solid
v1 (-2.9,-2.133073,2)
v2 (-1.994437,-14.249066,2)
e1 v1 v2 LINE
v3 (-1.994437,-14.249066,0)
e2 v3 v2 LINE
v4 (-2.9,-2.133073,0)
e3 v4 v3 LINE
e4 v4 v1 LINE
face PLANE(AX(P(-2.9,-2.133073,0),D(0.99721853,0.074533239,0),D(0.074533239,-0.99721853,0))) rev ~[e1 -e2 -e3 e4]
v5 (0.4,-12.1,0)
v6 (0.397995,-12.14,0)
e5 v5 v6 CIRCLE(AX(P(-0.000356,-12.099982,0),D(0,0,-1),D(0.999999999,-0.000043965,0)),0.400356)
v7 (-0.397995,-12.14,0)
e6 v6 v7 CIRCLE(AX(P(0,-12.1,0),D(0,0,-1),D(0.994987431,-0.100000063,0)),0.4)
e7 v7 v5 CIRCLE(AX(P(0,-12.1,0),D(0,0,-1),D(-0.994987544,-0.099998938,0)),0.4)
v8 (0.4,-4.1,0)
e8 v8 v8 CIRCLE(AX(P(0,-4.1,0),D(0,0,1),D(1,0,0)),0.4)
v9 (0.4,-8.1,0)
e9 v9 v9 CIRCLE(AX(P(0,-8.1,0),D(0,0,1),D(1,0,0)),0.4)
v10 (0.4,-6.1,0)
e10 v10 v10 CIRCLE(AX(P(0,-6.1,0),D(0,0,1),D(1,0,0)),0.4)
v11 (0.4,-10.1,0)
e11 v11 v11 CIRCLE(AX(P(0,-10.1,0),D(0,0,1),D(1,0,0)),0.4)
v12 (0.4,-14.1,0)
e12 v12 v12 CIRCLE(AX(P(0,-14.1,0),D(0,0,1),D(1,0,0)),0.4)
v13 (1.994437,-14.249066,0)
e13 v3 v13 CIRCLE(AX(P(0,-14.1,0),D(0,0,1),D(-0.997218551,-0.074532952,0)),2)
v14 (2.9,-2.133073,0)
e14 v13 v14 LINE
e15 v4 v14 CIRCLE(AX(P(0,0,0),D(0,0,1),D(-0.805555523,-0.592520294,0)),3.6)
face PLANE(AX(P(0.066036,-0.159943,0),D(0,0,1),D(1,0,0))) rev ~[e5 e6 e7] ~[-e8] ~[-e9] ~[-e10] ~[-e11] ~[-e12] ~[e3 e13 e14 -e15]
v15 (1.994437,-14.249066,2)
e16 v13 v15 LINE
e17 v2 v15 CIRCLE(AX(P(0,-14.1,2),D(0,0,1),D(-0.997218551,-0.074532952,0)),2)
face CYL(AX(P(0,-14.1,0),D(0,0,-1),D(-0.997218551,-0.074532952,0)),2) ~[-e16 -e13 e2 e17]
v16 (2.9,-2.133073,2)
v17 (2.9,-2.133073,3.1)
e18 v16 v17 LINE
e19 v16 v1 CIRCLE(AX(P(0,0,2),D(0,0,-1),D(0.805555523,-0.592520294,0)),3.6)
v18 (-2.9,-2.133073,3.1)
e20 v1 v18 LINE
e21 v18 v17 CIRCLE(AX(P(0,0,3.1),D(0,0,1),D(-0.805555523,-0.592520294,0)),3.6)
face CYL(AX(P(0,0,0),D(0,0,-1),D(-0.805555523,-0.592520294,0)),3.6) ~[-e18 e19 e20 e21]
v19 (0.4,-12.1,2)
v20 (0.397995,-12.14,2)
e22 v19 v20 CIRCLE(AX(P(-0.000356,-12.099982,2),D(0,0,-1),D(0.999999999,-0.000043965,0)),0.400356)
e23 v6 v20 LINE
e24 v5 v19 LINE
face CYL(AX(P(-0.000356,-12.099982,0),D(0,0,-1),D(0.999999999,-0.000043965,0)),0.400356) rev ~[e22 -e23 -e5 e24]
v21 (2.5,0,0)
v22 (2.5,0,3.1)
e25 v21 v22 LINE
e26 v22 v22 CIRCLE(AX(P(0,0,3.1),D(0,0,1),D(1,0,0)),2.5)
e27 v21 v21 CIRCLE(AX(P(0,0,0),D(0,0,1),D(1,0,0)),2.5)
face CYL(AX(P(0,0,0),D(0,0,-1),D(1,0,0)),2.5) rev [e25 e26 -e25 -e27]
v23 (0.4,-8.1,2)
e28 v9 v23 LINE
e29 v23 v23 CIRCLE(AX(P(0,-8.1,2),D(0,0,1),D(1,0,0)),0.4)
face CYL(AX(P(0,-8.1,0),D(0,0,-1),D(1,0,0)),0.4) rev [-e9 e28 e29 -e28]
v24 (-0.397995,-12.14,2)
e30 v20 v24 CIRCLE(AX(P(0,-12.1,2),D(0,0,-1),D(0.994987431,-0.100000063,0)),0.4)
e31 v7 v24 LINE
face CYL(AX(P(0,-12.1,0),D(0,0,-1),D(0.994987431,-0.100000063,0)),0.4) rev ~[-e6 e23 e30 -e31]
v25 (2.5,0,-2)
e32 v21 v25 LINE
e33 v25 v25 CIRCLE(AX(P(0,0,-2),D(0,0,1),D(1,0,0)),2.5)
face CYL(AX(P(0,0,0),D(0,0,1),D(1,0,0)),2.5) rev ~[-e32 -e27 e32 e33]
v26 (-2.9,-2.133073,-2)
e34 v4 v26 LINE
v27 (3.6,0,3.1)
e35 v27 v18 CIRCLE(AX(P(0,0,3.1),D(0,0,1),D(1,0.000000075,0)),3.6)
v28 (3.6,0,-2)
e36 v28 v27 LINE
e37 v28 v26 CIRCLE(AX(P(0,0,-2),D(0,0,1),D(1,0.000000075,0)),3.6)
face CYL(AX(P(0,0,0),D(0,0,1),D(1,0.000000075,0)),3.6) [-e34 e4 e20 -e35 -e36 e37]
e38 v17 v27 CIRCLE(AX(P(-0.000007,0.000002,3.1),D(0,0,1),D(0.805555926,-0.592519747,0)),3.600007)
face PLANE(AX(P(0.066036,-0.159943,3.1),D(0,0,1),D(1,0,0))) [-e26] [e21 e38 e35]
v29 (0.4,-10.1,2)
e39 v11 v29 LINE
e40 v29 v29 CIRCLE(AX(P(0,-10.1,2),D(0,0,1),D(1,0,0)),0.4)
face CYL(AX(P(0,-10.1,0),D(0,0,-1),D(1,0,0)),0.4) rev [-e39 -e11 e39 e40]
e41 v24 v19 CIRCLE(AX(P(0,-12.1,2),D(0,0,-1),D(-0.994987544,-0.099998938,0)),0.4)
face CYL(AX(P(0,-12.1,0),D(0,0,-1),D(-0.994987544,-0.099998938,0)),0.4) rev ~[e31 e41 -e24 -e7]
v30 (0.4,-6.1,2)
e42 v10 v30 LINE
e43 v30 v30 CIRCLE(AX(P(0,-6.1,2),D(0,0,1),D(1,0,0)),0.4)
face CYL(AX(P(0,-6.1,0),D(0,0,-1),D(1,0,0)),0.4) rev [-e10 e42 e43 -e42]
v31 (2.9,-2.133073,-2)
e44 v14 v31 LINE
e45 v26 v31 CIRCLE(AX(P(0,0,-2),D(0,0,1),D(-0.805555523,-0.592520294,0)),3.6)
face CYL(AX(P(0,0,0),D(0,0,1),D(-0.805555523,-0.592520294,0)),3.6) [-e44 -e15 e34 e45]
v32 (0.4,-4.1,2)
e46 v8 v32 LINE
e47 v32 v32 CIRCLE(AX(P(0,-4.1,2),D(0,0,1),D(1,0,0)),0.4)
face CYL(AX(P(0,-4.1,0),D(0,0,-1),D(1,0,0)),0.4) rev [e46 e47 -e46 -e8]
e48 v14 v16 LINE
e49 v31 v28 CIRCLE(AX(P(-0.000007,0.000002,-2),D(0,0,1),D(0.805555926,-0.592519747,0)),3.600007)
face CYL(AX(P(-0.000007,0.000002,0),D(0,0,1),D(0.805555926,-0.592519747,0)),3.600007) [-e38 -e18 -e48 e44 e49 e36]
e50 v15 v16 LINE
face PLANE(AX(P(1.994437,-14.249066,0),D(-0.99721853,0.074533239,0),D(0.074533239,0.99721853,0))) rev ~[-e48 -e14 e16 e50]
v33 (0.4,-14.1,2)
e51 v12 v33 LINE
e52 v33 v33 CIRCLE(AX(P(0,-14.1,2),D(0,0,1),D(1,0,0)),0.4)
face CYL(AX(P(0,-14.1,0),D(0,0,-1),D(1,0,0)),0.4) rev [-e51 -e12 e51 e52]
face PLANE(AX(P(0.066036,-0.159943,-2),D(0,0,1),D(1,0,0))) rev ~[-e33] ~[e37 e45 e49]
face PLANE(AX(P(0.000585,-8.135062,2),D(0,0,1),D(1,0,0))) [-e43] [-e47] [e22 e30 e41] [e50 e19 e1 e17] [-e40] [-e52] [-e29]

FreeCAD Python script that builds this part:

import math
import FreeCAD as App
import Part
import Sketcher

doc = App.newDocument("Part")
params = doc.addObject("Spreadsheet::Sheet", "Params")
for row, (alias, value) in enumerate([
    ("sketch1_radius", "2 mm"),
    ("sketch1_diameter", "0.8 mm"),
    ("sketch1_radius2", "3.6 mm"),
    ("pad1_length", "2 mm"),
    ("sketch2_diameter", "5 mm"),
    ("sketch2_radius", "3.6 mm"),
    ("pad2_length", "3.1 mm"),
    ("pad2_length2", "2 mm"),
], start=1):
    params.set(f"A{row}", alias)
    params.set(f"B{row}", "=" + value)
    params.setAlias(f"B{row}", alias)

body = doc.addObject("PartDesign::Body", "Body")

# Sketch on XY plane
sketch1 = body.newObject("Sketcher::SketchObject", "Sketch")
sketch1.AttachmentSupport = (doc.getObject("XY_Plane"), [""])
sketch1.MapMode = "FlatFace"
sketch1.addGeometry(Part.ArcOfCircle(Part.Circle(App.Vector(0, 0, 0), App.Vector(0, 0, 1), 3.6), math.radians(-144), math.radians(-36)), False)
sketch1.addGeometry(Part.LineSegment(App.Vector(-2.9, -2.133, 0), App.Vector(-1.994, -14.249, 0)), False)
sketch1.addGeometry(Part.ArcOfCircle(Part.Circle(App.Vector(0, -14.1, 0), App.Vector(0, 0, 1), 2), math.radians(-176), math.radians(-4)), False)
sketch1.addGeometry(Part.LineSegment(App.Vector(1.994, -14.249, 0), App.Vector(2.9, -2.133, 0)), False)
sketch1.addGeometry(Part.Circle(App.Vector(0, -14.1, 0), App.Vector(0, 0, 1), 0.4), False)
sketch1.addGeometry(Part.Circle(App.Vector(0, -10.1, 0), App.Vector(0, 0, 1), 0.4), False)
sketch1.addGeometry(Part.ArcOfCircle(Part.Circle(App.Vector(0, -12.1, 0), App.Vector(0, 0, 1), 0.4), math.radians(0), math.radians(186)), False)
sketch1.addGeometry(Part.ArcOfCircle(Part.Circle(App.Vector(0, -12.1, 0), App.Vector(0, 0, 1), 0.4), math.radians(-5.74), math.radians(0)), False)
sketch1.addGeometry(Part.ArcOfCircle(Part.Circle(App.Vector(0, -12.1, 0), App.Vector(0, 0, 1), 0.4), math.radians(-174), math.radians(-6)), False)
sketch1.addGeometry(Part.Circle(App.Vector(0, -8.1, 0), App.Vector(0, 0, 1), 0.4), False)
sketch1.addGeometry(Part.Circle(App.Vector(0, -6.1, 0), App.Vector(0, 0, 1), 0.4), False)
sketch1.addGeometry(Part.Circle(App.Vector(0, -4.1, 0), App.Vector(0, 0, 1), 0.4), False)
sketch1.addConstraint(Sketcher.Constraint("Coincident", 0, 1, 1, 1))
sketch1.addConstraint(Sketcher.Constraint("Tangent", 1, 2, 2, 1))
sketch1.addConstraint(Sketcher.Constraint("Tangent", 2, 2, 3, 1))
sketch1.addConstraint(Sketcher.Constraint("Coincident", 3, 2, 0, 2))
sketch1.addConstraint(Sketcher.Constraint("Coincident", 6, 1, 7, 2))
sketch1.addConstraint(Sketcher.Constraint("Coincident", 7, 1, 8, 2))
sketch1.addConstraint(Sketcher.Constraint("Tangent", 8, 1, 6, 2))
sketch1.addConstraint(Sketcher.Constraint("Coincident", 0, 3, -1, 1))
sketch1.addConstraint(Sketcher.Constraint("Coincident", 4, 3, 2, 3))
sketch1.addConstraint(Sketcher.Constraint("Equal", 4, 5))
sketch1.addConstraint(Sketcher.Constraint("Equal", 5, 6))
sketch1.addConstraint(Sketcher.Constraint("Equal", 6, 8))
sketch1.addConstraint(Sketcher.Constraint("Equal", 8, 9))
sketch1.addConstraint(Sketcher.Constraint("Equal", 9, 10))
sketch1.addConstraint(Sketcher.Constraint("Equal", 10, 11))
sketch1.addConstraint(Sketcher.Constraint("Symmetric", 1, 2, 2, 2, -2))
sketch1.addConstraint(Sketcher.Constraint("Symmetric", 7, 1, 8, 1, -2))
sketch1.addConstraint(Sketcher.Constraint("PointOnObject", 5, 3, -2))
sketch1.addConstraint(Sketcher.Constraint("PointOnObject", 9, 3, -2))
sketch1.addConstraint(Sketcher.Constraint("PointOnObject", 10, 3, -2))
sketch1.addConstraint(Sketcher.Constraint("PointOnObject", 11, 3, -2))
sketch1.addConstraint(Sketcher.Constraint("Horizontal", 8, 3, 6, 1))
sketch1.addConstraint(Sketcher.Constraint("Radius", 2, 2.0))
sketch1.addConstraint(Sketcher.Constraint("Diameter", 4, 0.8))
sketch1.addConstraint(Sketcher.Constraint("Radius", 0, 3.6))
sketch1.addConstraint(Sketcher.Constraint("DistanceY", 4, 3, 5, 3, 4.0))
sketch1.addConstraint(Sketcher.Constraint("DistanceY", 4, 3, 6, 3, 2.0))
sketch1.addConstraint(Sketcher.Constraint("DistanceY", 5, 3, 9, 3, 2.0))
sketch1.addConstraint(Sketcher.Constraint("DistanceY", 9, 3, 10, 3, 2.0))
sketch1.addConstraint(Sketcher.Constraint("DistanceY", 10, 3, 11, 3, 2.0))
sketch1.addConstraint(Sketcher.Constraint("DistanceY", 2, 3, -1, 1, 14.1))
sketch1.addConstraint(Sketcher.Constraint("DistanceX", 0, 1, -1, 1, 2.9))
sketch1.addConstraint(Sketcher.Constraint("DistanceY", 7, 1, -1, 1, 12.14))
sketch1.addConstraint(Sketcher.Constraint("Radius", 7, 0.400356))
sketch1.setExpression("Constraints[22]", "Params.sketch1_radius")
sketch1.setExpression("Constraints[23]", "Params.sketch1_diameter")
sketch1.setExpression("Constraints[24]", "Params.sketch1_radius2")
pad1 = body.newObject("PartDesign::Pad", "Pad")
pad1.Profile = sketch1
pad1.setExpression("Length", "Params.pad1_length")

# Sketch on XY plane
sketch2 = body.newObject("Sketcher::SketchObject", "Sketch001")
sketch2.AttachmentSupport = (doc.getObject("XY_Plane"), [""])
sketch2.MapMode = "FlatFace"
sketch2.addGeometry(Part.ArcOfCircle(Part.Circle(App.Vector(0, 0, 0), App.Vector(0, 0, 1), 3.6), math.radians(-36), math.radians(0)), False)
sketch2.addGeometry(Part.ArcOfCircle(Part.Circle(App.Vector(0, 0, 0), App.Vector(0, 0, 1), 3.6), math.radians(0), math.radians(216)), False)
sketch2.addGeometry(Part.ArcOfCircle(Part.Circle(App.Vector(0, 0, 0), App.Vector(0, 0, 1), 3.6), math.radians(-144), math.radians(-36)), False)
sketch2.addGeometry(Part.Circle(App.Vector(0, 0, 0), App.Vector(0, 0, 1), 2.5), False)
sketch2.addConstraint(Sketcher.Constraint("Tangent", 0, 2, 1, 1))
sketch2.addConstraint(Sketcher.Constraint("Tangent", 1, 2, 2, 1))
sketch2.addConstraint(Sketcher.Constraint("Tangent", 2, 2, 0, 1))
sketch2.addConstraint(Sketcher.Constraint("Coincident", 0, 3, -1, 1))
sketch2.addConstraint(Sketcher.Constraint("Coincident", 3, 3, -1, 1))
sketch2.addConstraint(Sketcher.Constraint("PointOnObject", 0, 2, -1))
sketch2.addConstraint(Sketcher.Constraint("Horizontal", 1, 2, 2, 2))
sketch2.addConstraint(Sketcher.Constraint("Diameter", 3, 5.0))
sketch2.addConstraint(Sketcher.Constraint("Radius", 1, 3.6))
sketch2.addConstraint(Sketcher.Constraint("DistanceX", 1, 2, -1, 1, 2.9))
sketch2.setExpression("Constraints[7]", "Params.sketch2_diameter")
sketch2.setExpression("Constraints[8]", "Params.sketch2_radius")
pad2 = body.newObject("PartDesign::Pad", "Pad001")
pad2.Profile = sketch2
pad2.Type = "TwoLengths"
pad2.setExpression("Length", "Params.pad2_length")
pad2.setExpression("Length2", "Params.pad2_length2")

doc.recompute()
